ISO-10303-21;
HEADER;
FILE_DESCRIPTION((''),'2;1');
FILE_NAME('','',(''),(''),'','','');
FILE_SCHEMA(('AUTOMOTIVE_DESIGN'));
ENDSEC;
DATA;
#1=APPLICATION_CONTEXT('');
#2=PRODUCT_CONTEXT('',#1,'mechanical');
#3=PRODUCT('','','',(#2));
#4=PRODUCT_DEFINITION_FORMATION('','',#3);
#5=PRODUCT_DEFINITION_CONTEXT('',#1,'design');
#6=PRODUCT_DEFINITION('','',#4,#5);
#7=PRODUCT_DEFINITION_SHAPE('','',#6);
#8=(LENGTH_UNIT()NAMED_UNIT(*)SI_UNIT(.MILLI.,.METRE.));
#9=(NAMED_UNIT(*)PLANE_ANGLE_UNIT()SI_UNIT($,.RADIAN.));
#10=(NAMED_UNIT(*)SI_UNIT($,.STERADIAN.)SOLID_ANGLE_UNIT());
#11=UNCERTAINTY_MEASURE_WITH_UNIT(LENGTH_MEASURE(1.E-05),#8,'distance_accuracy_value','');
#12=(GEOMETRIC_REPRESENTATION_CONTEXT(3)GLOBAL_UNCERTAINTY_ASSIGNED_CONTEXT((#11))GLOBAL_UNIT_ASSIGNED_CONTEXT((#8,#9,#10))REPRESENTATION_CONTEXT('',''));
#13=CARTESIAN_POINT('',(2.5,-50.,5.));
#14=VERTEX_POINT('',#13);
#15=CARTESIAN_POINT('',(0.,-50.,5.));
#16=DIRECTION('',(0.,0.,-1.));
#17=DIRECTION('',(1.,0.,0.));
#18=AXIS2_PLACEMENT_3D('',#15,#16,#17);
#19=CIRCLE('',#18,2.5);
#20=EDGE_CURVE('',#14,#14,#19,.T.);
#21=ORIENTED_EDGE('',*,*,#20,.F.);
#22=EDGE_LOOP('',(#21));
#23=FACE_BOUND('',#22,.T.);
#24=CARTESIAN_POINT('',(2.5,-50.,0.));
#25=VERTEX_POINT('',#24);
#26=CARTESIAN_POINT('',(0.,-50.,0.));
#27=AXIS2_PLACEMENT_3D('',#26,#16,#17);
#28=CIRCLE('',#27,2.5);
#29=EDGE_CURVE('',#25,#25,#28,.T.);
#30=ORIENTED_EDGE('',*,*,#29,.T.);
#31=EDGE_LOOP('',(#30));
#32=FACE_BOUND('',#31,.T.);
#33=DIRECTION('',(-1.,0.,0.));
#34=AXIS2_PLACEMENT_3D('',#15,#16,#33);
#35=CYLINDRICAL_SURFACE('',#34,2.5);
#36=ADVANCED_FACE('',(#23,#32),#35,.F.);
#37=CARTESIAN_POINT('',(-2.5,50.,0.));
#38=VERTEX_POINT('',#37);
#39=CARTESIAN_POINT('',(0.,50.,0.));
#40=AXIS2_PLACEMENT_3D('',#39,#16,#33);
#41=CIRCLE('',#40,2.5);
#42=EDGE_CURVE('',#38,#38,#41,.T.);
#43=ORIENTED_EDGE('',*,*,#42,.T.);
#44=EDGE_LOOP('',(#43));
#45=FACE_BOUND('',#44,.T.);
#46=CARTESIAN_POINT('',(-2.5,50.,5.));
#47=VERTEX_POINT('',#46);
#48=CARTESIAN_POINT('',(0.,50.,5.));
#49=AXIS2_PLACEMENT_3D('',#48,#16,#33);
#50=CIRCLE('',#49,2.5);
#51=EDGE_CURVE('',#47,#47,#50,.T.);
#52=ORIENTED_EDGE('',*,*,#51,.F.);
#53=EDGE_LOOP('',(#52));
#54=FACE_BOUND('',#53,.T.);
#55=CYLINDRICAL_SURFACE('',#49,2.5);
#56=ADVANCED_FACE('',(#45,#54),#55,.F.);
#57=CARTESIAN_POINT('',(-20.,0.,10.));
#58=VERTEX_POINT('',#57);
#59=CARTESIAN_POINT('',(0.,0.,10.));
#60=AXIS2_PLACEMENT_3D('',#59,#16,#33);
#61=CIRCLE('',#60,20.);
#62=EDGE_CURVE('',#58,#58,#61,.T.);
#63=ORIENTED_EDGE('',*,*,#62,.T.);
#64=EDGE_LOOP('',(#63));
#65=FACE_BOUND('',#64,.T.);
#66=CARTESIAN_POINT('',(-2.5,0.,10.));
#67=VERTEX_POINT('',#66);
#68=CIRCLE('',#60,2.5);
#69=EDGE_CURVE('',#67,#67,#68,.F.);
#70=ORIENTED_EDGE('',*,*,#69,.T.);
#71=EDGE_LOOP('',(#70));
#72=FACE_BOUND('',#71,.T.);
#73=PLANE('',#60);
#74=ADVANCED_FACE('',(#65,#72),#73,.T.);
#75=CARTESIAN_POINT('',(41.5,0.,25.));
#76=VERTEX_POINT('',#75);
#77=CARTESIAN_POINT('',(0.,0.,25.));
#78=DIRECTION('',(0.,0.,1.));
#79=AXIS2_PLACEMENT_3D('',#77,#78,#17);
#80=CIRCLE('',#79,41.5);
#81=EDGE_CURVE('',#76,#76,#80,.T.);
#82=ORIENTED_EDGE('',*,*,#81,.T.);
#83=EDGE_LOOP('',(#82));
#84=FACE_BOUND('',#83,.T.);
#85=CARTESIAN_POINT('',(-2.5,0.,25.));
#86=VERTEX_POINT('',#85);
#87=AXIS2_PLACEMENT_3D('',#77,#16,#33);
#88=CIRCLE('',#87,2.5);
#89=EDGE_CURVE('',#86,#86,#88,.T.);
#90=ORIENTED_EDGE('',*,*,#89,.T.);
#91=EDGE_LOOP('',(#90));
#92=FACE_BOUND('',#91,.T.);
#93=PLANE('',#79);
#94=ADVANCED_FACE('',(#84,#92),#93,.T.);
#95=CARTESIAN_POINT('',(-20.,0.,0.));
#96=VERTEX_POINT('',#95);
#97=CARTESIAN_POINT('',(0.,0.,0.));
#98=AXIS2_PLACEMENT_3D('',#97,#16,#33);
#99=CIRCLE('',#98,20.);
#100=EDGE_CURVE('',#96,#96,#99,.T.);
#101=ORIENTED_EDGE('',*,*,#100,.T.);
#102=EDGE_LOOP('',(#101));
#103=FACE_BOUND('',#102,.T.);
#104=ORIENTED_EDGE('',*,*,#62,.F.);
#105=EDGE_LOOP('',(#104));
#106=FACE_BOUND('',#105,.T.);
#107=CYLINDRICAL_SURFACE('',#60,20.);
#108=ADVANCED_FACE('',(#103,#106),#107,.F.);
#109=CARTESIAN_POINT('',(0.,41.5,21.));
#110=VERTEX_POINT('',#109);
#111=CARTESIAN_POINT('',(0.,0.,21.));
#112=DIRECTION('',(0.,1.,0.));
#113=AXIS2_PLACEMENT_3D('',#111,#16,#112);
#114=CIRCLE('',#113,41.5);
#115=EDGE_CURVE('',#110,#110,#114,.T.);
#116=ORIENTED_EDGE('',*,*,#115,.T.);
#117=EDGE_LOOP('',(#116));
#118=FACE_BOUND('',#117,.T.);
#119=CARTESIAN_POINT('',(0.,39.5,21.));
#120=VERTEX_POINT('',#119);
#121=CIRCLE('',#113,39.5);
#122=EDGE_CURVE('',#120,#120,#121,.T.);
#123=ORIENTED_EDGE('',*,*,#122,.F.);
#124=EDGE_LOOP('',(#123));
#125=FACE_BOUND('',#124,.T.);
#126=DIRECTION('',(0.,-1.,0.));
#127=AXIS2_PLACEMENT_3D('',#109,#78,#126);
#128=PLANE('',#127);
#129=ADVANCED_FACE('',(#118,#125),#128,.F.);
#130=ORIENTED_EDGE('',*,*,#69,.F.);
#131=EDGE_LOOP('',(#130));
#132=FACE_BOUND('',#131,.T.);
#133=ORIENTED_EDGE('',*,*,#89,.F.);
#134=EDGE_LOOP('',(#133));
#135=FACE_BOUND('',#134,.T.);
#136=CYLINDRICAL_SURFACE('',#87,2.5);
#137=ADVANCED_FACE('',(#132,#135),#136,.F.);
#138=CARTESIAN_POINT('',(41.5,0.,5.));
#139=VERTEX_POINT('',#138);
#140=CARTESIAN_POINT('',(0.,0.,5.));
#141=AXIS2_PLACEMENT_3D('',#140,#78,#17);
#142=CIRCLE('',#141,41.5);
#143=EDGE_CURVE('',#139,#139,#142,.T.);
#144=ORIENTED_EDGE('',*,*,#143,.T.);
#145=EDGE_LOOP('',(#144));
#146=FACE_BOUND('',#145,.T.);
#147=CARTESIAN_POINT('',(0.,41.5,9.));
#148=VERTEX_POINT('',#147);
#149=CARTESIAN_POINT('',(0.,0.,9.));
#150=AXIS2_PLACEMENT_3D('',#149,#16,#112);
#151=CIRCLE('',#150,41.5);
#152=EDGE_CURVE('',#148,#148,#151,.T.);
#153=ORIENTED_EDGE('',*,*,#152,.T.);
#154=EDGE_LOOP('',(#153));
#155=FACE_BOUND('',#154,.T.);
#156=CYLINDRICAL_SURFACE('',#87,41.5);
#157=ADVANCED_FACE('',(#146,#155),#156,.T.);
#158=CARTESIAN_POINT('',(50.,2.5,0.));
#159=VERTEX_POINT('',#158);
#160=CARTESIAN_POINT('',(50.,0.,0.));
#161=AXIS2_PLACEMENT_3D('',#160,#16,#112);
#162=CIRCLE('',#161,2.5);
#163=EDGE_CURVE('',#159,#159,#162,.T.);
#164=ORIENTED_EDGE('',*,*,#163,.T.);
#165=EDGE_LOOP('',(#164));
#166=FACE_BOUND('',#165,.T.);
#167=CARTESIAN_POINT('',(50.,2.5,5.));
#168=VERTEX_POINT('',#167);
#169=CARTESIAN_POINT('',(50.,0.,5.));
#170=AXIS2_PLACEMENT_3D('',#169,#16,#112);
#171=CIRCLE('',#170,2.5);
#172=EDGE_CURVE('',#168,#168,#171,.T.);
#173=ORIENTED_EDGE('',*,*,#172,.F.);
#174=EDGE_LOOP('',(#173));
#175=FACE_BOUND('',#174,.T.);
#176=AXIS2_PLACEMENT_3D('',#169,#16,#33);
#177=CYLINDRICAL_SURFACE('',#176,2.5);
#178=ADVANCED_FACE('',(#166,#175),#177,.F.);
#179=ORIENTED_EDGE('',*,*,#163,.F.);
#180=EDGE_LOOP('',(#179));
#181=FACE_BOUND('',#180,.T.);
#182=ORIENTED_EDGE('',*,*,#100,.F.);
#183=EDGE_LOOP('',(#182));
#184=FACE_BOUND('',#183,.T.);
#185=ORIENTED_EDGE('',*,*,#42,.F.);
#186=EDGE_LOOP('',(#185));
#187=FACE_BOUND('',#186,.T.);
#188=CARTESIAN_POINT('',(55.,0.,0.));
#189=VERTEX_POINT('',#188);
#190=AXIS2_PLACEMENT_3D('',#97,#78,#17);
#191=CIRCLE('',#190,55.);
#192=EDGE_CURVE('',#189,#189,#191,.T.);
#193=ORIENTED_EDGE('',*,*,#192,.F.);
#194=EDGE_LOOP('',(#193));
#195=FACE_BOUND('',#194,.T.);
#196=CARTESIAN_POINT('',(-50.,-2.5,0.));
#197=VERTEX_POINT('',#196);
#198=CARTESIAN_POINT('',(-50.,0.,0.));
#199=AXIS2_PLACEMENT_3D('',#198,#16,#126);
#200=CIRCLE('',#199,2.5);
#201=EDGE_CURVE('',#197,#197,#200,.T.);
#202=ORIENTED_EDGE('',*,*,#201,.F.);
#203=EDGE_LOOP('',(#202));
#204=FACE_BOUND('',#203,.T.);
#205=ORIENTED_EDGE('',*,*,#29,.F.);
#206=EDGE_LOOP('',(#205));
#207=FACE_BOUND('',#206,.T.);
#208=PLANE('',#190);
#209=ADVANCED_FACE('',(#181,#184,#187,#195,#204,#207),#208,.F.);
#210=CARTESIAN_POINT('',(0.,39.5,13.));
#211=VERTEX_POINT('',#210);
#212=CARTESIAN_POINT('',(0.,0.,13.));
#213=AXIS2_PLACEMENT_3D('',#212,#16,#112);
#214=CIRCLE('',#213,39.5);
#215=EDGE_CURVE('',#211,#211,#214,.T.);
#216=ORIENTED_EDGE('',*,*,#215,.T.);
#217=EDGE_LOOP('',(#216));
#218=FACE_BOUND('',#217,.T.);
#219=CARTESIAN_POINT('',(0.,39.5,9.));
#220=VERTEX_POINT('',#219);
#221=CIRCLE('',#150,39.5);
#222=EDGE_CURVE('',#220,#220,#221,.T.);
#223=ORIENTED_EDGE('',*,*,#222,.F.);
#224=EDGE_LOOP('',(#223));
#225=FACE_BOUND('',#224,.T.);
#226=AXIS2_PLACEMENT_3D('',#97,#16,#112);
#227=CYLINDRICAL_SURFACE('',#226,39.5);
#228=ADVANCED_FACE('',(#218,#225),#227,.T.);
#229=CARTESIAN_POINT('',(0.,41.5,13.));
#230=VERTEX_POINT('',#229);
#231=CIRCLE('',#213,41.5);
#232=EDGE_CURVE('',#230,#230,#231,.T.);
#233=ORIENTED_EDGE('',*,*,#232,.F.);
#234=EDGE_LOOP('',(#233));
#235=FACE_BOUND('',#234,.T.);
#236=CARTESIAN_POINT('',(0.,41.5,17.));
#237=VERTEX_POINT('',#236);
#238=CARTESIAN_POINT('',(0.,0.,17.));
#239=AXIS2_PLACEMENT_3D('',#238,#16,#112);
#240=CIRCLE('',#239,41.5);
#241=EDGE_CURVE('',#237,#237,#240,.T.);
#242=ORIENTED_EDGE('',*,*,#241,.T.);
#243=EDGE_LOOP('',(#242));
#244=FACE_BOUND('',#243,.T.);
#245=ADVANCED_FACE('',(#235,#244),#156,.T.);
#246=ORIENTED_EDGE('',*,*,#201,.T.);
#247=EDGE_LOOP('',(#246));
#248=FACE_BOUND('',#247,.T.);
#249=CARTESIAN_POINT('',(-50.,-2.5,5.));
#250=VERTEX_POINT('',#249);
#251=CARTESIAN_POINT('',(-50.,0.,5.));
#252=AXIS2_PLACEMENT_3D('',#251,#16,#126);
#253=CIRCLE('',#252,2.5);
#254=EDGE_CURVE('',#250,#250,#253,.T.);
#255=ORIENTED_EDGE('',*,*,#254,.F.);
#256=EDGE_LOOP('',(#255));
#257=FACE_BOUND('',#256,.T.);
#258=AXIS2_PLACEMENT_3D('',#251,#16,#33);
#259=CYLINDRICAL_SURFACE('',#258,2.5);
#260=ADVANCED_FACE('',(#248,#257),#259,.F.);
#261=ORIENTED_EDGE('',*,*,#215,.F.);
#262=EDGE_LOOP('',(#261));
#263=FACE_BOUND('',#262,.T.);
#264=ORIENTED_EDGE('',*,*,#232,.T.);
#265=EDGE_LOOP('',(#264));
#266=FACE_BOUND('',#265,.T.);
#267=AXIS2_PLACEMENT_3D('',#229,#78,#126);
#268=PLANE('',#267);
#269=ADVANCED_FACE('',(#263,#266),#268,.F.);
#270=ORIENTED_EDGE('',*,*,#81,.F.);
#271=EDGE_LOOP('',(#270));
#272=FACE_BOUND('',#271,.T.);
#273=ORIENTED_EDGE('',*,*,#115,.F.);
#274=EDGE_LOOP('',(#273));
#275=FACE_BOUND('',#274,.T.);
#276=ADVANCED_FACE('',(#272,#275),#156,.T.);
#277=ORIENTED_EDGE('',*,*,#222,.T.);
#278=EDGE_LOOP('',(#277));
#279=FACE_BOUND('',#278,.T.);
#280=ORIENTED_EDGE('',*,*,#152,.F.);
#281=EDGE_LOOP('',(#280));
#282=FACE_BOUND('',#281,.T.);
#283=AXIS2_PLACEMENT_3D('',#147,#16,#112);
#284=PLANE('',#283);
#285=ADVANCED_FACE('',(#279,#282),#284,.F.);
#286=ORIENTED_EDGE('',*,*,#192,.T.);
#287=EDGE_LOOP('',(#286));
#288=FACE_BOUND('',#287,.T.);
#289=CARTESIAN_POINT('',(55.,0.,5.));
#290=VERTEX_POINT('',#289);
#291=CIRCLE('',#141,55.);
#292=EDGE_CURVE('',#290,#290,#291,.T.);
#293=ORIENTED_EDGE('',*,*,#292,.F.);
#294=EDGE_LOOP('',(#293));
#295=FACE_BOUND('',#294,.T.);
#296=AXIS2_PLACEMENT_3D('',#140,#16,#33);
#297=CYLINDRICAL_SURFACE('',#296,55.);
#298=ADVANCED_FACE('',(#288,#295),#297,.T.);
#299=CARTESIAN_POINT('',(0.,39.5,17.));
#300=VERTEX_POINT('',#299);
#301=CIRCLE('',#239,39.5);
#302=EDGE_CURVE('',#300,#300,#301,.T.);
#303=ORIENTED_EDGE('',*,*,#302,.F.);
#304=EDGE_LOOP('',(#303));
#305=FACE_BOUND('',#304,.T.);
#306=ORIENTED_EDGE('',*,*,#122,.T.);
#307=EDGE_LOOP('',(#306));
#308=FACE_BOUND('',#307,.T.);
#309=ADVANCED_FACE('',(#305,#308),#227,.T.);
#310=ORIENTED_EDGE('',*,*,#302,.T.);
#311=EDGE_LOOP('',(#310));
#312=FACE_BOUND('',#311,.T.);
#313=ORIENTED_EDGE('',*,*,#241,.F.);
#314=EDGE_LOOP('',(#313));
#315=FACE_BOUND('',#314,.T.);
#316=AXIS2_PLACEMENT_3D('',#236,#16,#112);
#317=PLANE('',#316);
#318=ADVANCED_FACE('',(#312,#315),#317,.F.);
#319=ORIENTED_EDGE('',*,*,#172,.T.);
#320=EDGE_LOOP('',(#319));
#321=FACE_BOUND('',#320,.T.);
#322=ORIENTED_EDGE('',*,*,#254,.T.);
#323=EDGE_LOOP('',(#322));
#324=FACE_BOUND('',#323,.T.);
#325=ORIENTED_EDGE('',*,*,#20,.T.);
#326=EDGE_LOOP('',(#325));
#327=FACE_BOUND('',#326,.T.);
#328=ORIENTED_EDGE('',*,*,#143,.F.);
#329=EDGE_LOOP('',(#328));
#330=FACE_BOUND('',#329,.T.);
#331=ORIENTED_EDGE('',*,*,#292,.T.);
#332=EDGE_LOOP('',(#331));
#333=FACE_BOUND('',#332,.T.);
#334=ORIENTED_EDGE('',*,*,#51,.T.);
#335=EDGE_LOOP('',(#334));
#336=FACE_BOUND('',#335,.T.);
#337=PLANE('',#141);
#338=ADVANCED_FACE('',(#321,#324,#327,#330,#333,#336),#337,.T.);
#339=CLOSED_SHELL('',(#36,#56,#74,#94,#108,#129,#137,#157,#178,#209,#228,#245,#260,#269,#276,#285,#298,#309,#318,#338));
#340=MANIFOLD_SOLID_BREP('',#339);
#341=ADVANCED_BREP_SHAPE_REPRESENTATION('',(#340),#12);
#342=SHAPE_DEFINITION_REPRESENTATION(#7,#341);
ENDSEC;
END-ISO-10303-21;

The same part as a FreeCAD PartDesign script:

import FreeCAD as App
import Part
import Sketcher

doc = App.newDocument("Part")
body = doc.addObject("PartDesign::Body", "Body")

# Sketch on XY plane
sketch1 = doc.addObject("Sketcher::SketchObject", "Sketch")
body.addObject(sketch1)
sketch1.AttachmentSupport = (doc.XY_Plane, [""])
sketch1.MapMode = "FlatFace"
sketch1.addGeometry(Part.Circle(App.Vector(0, 0, 0), App.Vector(0, 0, 1), 55), False)
sketch1.addConstraint(Sketcher.Constraint("Coincident", 0, 3, -1, 1))
sketch1.addConstraint(Sketcher.Constraint("Diameter", 0, 110.0))
pad1 = doc.addObject("PartDesign::Pad", "Pad")
body.addObject(pad1)
pad1.Profile = sketch1
pad1.Length = 5

# Sketch on XY plane
sketch2 = doc.addObject("Sketcher::SketchObject", "Sketch001")
body.addObject(sketch2)
sketch2.AttachmentSupport = (doc.XY_Plane, [""])
sketch2.MapMode = "FlatFace"
sketch2.addGeometry(Part.Circle(App.Vector(0, 50, 0), App.Vector(0, 0, 1), 2.5), False)
sketch2.addConstraint(Sketcher.Constraint("PointOnObject", 0, 3, -2))
sketch2.addConstraint(Sketcher.Constraint("Diameter", 0, 5.0))
sketch2.addConstraint(Sketcher.Constraint("DistanceY", -1, 1, 0, 3, 50.0))
pocket1 = doc.addObject("PartDesign::Pocket", "Pocket")
body.addObject(pocket1)
pocket1.Profile = sketch2
pocket1.Type = "ThroughAll"
pocket1.Reversed = True
doc.recompute()

polarpattern = doc.addObject("PartDesign::PolarPattern", "PolarPattern")
body.addObject(polarpattern)
polarpattern.Originals = [pocket1]
polarpattern.Axis = (doc.Z_Axis, [""])
polarpattern.Angle = 360
polarpattern.Occurrences = 4
body.Tip = polarpattern

# Sketch on XY plane
sketch3 = doc.addObject("Sketcher::SketchObject", "Sketch002")
body.addObject(sketch3)
sketch3.AttachmentSupport = (doc.XY_Plane, [""])
sketch3.MapMode = "FlatFace"
sketch3.AttachmentOffset = App.Placement(App.Vector(0, 0, 5), App.Rotation())
sketch3.addGeometry(Part.Circle(App.Vector(0, 0, 0), App.Vector(0, 0, 1), 42), False)
sketch3.addConstraint(Sketcher.Constraint("Coincident", 0, 3, -1, 1))
sketch3.addConstraint(Sketcher.Constraint("Diameter", 0, 83.0))
pad2 = doc.addObject("PartDesign::Pad", "Pad001")
body.addObject(pad2)
pad2.Profile = sketch3
pad2.Length = 20

# Sketch on YZ plane
sketch4 = doc.addObject("Sketcher::SketchObject", "Sketch003")
body.addObject(sketch4)
sketch4.AttachmentSupport = (doc.YZ_Plane, [""])
sketch4.MapMode = "FlatFace"
sketch4.addGeometry(Part.LineSegment(App.Vector(41.5, 13, 0), App.Vector(39.5, 13, 0)), False)
sketch4.addGeometry(Part.LineSegment(App.Vector(39.5, 13, 0), App.Vector(39.5, 9, 0)), False)
sketch4.addGeometry(Part.LineSegment(App.Vector(39.5, 9, 0), App.Vector(41.5, 9, 0)), False)
sketch4.addGeometry(Part.LineSegment(App.Vector(41.5, 9, 0), App.Vector(41.5, 13, 0)), False)
sketch4.addGeometry(Part.LineSegment(App.Vector(41.5, 21, 0), App.Vector(39.5, 21, 0)), False)
sketch4.addGeometry(Part.LineSegment(App.Vector(39.5, 21, 0), App.Vector(39.5, 17, 0)), False)
sketch4.addGeometry(Part.LineSegment(App.Vector(39.5, 17, 0), App.Vector(41.5, 17, 0)), False)
sketch4.addGeometry(Part.LineSegment(App.Vector(41.5, 17, 0), App.Vector(41.5, 21, 0)), False)
sketch4.addConstraint(Sketcher.Constraint("Coincident", 0, 2, 1, 1))
sketch4.addConstraint(Sketcher.Constraint("Coincident", 1, 2, 2, 1))
sketch4.addConstraint(Sketcher.Constraint("Coincident", 2, 2, 3, 1))
sketch4.addConstraint(Sketcher.Constraint("Coincident", 3, 2, 0, 1))
sketch4.addConstraint(Sketcher.Constraint("Coincident", 4, 2, 5, 1))
sketch4.addConstraint(Sketcher.Constraint("Coincident", 5, 2, 6, 1))
sketch4.addConstraint(Sketcher.Constraint("Coincident", 6, 2, 7, 1))
sketch4.addConstraint(Sketcher.Constraint("Coincident", 7, 2, 4, 1))
sketch4.addConstraint(Sketcher.Constraint("Horizontal", 0))
sketch4.addConstraint(Sketcher.Constraint("Vertical", 1))
sketch4.addConstraint(Sketcher.Constraint("Horizontal", 2))
sketch4.addConstraint(Sketcher.Constraint("Vertical", 3))
sketch4.addConstraint(Sketcher.Constraint("Horizontal", 4))
sketch4.addConstraint(Sketcher.Constraint("Vertical", 5))
sketch4.addConstraint(Sketcher.Constraint("Horizontal", 6))
sketch4.addConstraint(Sketcher.Constraint("Vertical", 7))
sketch4.addConstraint(Sketcher.Constraint("Vertical", 1, 2, 4, 2))
sketch4.addConstraint(Sketcher.Constraint("Vertical", 3, 2, 6, 2))
sketch4.addConstraint(Sketcher.Constraint("Equal", 3, 5))
sketch4.addConstraint(Sketcher.Constraint("DistanceX", 0, 2, 0, 1, 2.0))
sketch4.addConstraint(Sketcher.Constraint("DistanceY", 1, 2, 1, 1, 4.0))
sketch4.addConstraint(Sketcher.Constraint("DistanceY", -1, 1, 0, 2, 13.0))
sketch4.addConstraint(Sketcher.Constraint("DistanceY", -1, 1, 4, 2, 21.0))
sketch4.addConstraint(Sketcher.Constraint("DistanceX", -1, 1, 0, 2, 39.5))
groove = doc.addObject("PartDesign::Groove", "Groove")
body.addObject(groove)
groove.Profile = sketch4
groove.ReferenceAxis = (sketch4, ["V_Axis"])
groove.Angle = 360

# Sketch on XY plane
sketch5 = doc.addObject("Sketcher::SketchObject", "Sketch004")
body.addObject(sketch5)
sketch5.AttachmentSupport = (doc.XY_Plane, [""])
sketch5.MapMode = "FlatFace"
sketch5.addGeometry(Part.Circle(App.Vector(0, 0, 0), App.Vector(0, 0, 1), 2.5), False)
sketch5.addConstraint(Sketcher.Constraint("Coincident", 0, 3, -1, 1))
sketch5.addConstraint(Sketcher.Constraint("Diameter", 0, 5.0))
pocket2 = doc.addObject("PartDesign::Pocket", "Pocket001")
body.addObject(pocket2)
pocket2.Profile = sketch5
pocket2.Type = "ThroughAll"
pocket2.Reversed = True

# Sketch on XY plane
sketch6 = doc.addObject("Sketcher::SketchObject", "Sketch005")
body.addObject(sketch6)
sketch6.AttachmentSupport = (doc.XY_Plane, [""])
sketch6.MapMode = "FlatFace"
sketch6.addGeometry(Part.Circle(App.Vector(0, 0, 0), App.Vector(0, 0, 1), 20), False)
sketch6.addConstraint(Sketcher.Constraint("Coincident", 0, 3, -1, 1))
sketch6.addConstraint(Sketcher.Constraint("Diameter", 0, 40.0))
pocket3 = doc.addObject("PartDesign::Pocket", "Pocket002")
body.addObject(pocket3)
pocket3.Profile = sketch6
pocket3.Length = 10
pocket3.Reversed = True

doc.recompute()
